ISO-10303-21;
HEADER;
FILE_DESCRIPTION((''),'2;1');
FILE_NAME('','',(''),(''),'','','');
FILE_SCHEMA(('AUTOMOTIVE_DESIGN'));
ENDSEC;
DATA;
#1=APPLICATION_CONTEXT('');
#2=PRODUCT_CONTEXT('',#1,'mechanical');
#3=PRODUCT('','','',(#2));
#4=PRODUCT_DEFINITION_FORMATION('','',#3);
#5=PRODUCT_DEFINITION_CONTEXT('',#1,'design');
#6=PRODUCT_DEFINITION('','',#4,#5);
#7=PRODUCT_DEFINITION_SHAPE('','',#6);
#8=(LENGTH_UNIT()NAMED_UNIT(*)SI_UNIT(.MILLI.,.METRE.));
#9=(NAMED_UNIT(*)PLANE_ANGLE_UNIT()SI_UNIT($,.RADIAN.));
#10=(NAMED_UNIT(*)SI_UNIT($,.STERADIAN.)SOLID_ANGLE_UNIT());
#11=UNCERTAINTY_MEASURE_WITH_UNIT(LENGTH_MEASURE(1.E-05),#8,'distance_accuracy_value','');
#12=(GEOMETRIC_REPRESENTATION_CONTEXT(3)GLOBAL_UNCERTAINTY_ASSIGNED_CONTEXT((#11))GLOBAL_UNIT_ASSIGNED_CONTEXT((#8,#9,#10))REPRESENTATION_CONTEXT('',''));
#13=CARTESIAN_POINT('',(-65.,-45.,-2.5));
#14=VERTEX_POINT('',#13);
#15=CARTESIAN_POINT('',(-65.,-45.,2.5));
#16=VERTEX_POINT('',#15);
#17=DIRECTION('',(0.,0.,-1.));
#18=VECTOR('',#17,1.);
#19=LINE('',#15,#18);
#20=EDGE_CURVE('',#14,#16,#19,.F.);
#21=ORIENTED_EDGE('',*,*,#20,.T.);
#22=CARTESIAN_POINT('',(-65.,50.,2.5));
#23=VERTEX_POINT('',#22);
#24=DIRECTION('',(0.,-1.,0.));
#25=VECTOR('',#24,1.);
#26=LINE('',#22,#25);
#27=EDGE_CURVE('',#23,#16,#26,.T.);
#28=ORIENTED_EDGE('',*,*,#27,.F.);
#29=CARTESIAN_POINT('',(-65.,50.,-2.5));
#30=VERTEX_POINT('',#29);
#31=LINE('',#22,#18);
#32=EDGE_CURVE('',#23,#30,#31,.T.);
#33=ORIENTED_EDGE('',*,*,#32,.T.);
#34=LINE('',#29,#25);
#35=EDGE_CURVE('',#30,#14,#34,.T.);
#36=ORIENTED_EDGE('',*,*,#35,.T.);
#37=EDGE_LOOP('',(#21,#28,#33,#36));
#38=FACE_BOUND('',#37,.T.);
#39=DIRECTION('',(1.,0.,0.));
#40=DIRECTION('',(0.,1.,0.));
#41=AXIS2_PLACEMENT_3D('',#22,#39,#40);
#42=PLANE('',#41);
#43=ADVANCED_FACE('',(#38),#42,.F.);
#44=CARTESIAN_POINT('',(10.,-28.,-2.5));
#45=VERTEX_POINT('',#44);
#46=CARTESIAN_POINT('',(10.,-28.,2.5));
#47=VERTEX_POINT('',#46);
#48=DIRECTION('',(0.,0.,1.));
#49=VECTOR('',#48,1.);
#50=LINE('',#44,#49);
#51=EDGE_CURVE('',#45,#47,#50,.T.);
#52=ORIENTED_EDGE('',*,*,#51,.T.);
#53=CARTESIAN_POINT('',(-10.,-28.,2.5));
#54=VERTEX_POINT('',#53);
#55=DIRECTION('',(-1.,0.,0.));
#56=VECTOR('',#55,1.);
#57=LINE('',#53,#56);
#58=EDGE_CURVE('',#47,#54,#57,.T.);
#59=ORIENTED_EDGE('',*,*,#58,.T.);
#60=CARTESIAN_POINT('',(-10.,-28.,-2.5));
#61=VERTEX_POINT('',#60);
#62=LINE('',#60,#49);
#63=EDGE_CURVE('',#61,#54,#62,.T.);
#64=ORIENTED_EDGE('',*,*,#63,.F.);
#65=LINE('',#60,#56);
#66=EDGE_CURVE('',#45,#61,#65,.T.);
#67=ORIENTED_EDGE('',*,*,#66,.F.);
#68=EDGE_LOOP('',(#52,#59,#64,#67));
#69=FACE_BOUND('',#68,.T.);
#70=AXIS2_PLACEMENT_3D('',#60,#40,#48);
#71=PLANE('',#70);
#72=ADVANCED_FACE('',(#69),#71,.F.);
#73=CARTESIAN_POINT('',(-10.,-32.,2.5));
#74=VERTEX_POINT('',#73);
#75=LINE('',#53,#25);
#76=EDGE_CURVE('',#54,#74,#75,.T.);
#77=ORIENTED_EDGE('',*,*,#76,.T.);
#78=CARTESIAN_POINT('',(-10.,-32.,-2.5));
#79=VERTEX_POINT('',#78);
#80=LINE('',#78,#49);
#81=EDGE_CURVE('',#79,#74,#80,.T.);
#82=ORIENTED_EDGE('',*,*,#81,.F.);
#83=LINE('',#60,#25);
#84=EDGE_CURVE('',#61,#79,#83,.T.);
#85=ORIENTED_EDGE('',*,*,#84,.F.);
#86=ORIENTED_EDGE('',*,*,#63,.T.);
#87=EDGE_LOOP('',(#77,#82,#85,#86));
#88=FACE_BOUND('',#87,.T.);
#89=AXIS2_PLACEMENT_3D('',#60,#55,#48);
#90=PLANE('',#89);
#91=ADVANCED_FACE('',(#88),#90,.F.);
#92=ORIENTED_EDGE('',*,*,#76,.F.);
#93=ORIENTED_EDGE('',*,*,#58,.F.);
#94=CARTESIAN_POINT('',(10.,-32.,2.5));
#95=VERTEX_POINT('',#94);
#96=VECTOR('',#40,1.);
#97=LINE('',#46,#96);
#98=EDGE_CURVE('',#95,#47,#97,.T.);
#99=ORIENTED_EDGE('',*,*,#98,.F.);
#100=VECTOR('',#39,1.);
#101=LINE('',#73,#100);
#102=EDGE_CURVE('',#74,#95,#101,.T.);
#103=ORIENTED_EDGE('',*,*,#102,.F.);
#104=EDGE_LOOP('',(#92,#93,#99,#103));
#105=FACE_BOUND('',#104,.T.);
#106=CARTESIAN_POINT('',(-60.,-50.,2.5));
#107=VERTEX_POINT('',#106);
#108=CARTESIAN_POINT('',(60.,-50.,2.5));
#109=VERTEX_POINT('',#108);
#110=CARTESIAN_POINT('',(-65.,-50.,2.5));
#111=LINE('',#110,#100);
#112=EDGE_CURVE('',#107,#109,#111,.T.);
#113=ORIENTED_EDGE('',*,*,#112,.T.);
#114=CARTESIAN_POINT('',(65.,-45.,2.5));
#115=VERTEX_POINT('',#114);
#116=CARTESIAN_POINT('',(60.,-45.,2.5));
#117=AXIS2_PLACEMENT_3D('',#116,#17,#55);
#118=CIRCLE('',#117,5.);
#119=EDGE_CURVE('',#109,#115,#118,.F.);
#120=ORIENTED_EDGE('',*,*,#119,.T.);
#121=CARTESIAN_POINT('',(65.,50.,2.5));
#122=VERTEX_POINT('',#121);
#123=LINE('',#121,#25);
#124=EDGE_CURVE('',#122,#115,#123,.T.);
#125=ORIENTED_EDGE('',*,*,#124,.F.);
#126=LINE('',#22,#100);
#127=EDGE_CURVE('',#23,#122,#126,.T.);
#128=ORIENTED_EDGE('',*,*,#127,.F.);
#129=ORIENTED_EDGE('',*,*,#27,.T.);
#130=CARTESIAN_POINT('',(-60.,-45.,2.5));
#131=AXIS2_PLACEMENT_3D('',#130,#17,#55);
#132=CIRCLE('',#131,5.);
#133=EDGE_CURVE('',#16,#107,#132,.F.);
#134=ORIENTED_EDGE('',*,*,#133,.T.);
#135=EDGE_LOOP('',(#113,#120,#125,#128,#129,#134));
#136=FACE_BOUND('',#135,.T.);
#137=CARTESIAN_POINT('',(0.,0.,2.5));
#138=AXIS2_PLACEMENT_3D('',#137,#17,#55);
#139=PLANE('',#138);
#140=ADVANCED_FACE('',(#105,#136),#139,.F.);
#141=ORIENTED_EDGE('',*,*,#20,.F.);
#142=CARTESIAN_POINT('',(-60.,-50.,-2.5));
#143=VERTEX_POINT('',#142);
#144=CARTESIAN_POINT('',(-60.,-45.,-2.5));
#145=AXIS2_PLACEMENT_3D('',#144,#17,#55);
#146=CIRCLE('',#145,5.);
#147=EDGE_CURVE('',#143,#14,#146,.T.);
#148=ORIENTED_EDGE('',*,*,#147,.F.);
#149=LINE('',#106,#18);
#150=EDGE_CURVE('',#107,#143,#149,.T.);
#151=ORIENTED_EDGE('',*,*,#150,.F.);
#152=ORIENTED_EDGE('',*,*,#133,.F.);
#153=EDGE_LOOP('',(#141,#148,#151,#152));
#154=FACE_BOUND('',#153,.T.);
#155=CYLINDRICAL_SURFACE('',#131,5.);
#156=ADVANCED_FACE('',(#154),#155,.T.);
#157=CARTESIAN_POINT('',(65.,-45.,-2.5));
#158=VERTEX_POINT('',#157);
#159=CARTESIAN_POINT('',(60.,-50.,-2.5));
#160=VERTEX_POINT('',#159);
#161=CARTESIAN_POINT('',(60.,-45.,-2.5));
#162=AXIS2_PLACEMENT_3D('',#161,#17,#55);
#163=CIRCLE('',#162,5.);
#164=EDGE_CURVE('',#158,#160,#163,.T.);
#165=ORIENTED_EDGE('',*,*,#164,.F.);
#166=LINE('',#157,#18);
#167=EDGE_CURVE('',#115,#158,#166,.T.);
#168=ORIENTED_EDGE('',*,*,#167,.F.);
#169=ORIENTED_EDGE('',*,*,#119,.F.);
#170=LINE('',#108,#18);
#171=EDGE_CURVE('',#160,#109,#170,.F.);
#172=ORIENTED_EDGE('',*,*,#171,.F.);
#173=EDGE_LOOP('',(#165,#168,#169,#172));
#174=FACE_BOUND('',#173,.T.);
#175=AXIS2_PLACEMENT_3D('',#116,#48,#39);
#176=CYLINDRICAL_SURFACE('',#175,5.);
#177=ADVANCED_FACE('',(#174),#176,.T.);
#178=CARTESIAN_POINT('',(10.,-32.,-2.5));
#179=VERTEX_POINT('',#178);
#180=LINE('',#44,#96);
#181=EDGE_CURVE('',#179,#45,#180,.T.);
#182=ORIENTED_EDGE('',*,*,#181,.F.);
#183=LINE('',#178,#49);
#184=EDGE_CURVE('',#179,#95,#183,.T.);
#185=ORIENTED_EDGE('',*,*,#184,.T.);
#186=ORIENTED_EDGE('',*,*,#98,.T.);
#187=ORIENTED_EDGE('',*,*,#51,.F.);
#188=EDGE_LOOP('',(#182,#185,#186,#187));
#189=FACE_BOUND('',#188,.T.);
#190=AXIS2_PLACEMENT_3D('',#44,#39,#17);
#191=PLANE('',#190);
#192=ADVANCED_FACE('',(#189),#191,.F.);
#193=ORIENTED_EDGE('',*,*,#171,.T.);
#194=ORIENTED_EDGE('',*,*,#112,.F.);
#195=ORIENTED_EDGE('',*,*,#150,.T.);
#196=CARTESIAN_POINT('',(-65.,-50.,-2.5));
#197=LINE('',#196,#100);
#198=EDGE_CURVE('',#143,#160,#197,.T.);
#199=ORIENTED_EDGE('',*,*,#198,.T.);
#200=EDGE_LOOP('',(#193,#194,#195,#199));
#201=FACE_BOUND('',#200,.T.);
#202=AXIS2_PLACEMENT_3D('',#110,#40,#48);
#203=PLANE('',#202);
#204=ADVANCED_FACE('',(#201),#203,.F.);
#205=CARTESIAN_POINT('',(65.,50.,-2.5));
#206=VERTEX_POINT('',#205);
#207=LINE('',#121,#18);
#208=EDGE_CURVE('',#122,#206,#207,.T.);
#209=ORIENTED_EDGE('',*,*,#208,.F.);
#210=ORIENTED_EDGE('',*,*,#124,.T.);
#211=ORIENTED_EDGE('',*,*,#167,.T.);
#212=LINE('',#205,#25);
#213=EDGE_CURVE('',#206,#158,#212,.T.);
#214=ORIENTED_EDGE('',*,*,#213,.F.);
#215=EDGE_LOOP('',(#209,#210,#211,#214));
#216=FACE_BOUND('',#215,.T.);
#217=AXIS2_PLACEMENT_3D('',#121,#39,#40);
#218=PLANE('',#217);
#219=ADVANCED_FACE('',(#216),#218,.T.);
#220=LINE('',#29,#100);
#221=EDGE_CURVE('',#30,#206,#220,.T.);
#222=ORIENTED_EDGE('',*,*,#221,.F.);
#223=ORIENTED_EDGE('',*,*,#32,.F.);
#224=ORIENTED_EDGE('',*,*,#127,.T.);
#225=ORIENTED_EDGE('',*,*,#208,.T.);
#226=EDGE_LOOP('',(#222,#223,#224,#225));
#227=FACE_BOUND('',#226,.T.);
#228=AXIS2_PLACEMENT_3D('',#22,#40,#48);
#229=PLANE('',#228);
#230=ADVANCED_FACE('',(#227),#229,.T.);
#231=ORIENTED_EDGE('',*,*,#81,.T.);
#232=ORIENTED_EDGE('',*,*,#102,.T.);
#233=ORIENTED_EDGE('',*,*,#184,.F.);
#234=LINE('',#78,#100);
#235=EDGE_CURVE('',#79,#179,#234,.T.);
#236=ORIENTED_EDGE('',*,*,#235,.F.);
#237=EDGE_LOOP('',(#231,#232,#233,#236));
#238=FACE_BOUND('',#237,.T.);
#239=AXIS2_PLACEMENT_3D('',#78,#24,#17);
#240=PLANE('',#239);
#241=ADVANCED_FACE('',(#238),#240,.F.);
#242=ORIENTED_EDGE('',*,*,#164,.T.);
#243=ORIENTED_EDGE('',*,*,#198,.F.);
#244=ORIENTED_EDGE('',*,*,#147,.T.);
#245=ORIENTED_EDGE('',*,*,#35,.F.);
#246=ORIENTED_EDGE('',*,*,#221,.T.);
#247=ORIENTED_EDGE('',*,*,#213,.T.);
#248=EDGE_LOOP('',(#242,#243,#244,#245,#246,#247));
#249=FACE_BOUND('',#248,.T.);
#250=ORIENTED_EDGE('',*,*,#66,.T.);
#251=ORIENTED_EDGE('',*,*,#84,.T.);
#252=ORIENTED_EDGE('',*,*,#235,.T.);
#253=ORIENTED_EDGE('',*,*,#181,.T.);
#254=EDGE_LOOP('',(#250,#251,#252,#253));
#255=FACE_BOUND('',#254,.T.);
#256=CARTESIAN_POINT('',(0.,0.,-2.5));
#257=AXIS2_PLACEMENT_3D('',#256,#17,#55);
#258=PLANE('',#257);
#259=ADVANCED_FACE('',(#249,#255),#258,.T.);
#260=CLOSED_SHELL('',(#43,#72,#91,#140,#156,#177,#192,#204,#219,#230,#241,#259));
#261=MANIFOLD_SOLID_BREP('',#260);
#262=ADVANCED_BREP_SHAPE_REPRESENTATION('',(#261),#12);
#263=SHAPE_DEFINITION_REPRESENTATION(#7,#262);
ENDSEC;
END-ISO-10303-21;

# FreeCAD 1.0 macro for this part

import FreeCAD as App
import Part
import Sketcher

V = App.Vector


def edges_at(feature, points):
    """Names of the edges that pass closest to the given points."""
    edges = feature.Shape.Edges
    near = lambda p: min(range(len(edges)), key=lambda i: edges[i].distToShape(Part.Vertex(*p))[0])
    return sorted({f"Edge{near(p) + 1}" for p in points})

doc = App.newDocument("Part")
params = doc.addObject("Spreadsheet::Sheet", "Params")
for row, (alias, value) in enumerate([
    ("sketch1_width", "130 mm"),
    ("sketch1_height", "100 mm"),
    ("pad1_length", "5 mm"),
    ("fillet_radius", "5 mm"),
    ("sketch2_width", "20 mm"),
    ("sketch2_height", "4 mm"),
    ("pocket1_length", "5 mm"),
], start=1):
    params.set(f"A{row}", alias)
    params.set(f"B{row}", "=" + value)
    params.setAlias(f"B{row}", alias)

body = doc.addObject("PartDesign::Body", "Body")

sketch1 = doc.addObject("Sketcher::SketchObject", "Sketch")
body.addObject(sketch1)
sketch1.AttachmentSupport = (doc.XY_Plane, [""])
sketch1.MapMode = "FlatFace"
sketch1.addGeometry(Part.LineSegment(V(-65, 50, 0), V(-65, -50, 0)), False)
sketch1.addGeometry(Part.LineSegment(V(-65, -50, 0), V(65, -50, 0)), False)
sketch1.addGeometry(Part.LineSegment(V(65, -50, 0), V(65, 50, 0)), False)
sketch1.addGeometry(Part.LineSegment(V(65, 50, 0), V(-65, 50, 0)), False)
sketch1.addConstraint(Sketcher.Constraint("Coincident", 0, 2, 1, 1))
sketch1.addConstraint(Sketcher.Constraint("Coincident", 1, 2, 2, 1))
sketch1.addConstraint(Sketcher.Constraint("Coincident", 2, 2, 3, 1))
sketch1.addConstraint(Sketcher.Constraint("Coincident", 3, 2, 0, 1))
sketch1.addConstraint(Sketcher.Constraint("Vertical", 0))
sketch1.addConstraint(Sketcher.Constraint("Horizontal", 1))
sketch1.addConstraint(Sketcher.Constraint("Vertical", 2))
sketch1.addConstraint(Sketcher.Constraint("Horizontal", 3))
sketch1.addConstraint(Sketcher.Constraint("Symmetric", 0, 2, 2, 2, -1, 1))
sketch1.addConstraint(Sketcher.Constraint("DistanceX", 1, 1, 1, 2, 130.0))
sketch1.addConstraint(Sketcher.Constraint("DistanceY", 0, 2, 0, 1, 100.0))
sketch1.setExpression("Constraints[9]", "Params.sketch1_width")
sketch1.setExpression("Constraints[10]", "Params.sketch1_height")
pad1 = doc.addObject("PartDesign::Pad", "Pad")
body.addObject(pad1)
pad1.Profile = sketch1
pad1.setExpression("Length", "Params.pad1_length")
pad1.Midplane = True
doc.recompute()

fillet = doc.addObject("PartDesign::Fillet", "Fillet")
body.addObject(fillet)
fillet.Base = (pad1, edges_at(pad1, [(-65, -50, 0), (65, -50, 0)]))
fillet.setExpression("Radius", "Params.fillet_radius")

sketch2 = doc.addObject("Sketcher::SketchObject", "Sketch001")
body.addObject(sketch2)
sketch2.AttachmentSupport = (doc.XY_Plane, [""])
sketch2.MapMode = "FlatFace"
sketch2.AttachmentOffset = App.Placement(V(0, 0, 2.5), App.Rotation())
sketch2.addGeometry(Part.LineSegment(V(-10, -28, 0), V(-10, -32, 0)), False)
sketch2.addGeometry(Part.LineSegment(V(-10, -32, 0), V(10, -32, 0)), False)
sketch2.addGeometry(Part.LineSegment(V(10, -32, 0), V(10, -28, 0)), False)
sketch2.addGeometry(Part.LineSegment(V(10, -28, 0), V(-10, -28, 0)), False)
sketch2.addConstraint(Sketcher.Constraint("Coincident", 0, 2, 1, 1))
sketch2.addConstraint(Sketcher.Constraint("Coincident", 1, 2, 2, 1))
sketch2.addConstraint(Sketcher.Constraint("Coincident", 2, 2, 3, 1))
sketch2.addConstraint(Sketcher.Constraint("Coincident", 3, 2, 0, 1))
sketch2.addConstraint(Sketcher.Constraint("Vertical", 0))
sketch2.addConstraint(Sketcher.Constraint("Horizontal", 1))
sketch2.addConstraint(Sketcher.Constraint("Vertical", 2))
sketch2.addConstraint(Sketcher.Constraint("Horizontal", 3))
sketch2.addConstraint(Sketcher.Constraint("DistanceX", 1, 1, 1, 2, 20.0))
sketch2.addConstraint(Sketcher.Constraint("DistanceY", 0, 2, 0, 1, 4.0))
sketch2.addConstraint(Sketcher.Constraint("DistanceX", 0, 2, -1, 1, 10.0))
sketch2.addConstraint(Sketcher.Constraint("DistanceY", 0, 2, -1, 1, 32.0))
sketch2.setExpression("Constraints[8]", "Params.sketch2_width")
sketch2.setExpression("Constraints[9]", "Params.sketch2_height")
pocket1 = doc.addObject("PartDesign::Pocket", "Pocket")
body.addObject(pocket1)
pocket1.Profile = sketch2
pocket1.setExpression("Length", "Params.pocket1_length")

doc.recompute()
